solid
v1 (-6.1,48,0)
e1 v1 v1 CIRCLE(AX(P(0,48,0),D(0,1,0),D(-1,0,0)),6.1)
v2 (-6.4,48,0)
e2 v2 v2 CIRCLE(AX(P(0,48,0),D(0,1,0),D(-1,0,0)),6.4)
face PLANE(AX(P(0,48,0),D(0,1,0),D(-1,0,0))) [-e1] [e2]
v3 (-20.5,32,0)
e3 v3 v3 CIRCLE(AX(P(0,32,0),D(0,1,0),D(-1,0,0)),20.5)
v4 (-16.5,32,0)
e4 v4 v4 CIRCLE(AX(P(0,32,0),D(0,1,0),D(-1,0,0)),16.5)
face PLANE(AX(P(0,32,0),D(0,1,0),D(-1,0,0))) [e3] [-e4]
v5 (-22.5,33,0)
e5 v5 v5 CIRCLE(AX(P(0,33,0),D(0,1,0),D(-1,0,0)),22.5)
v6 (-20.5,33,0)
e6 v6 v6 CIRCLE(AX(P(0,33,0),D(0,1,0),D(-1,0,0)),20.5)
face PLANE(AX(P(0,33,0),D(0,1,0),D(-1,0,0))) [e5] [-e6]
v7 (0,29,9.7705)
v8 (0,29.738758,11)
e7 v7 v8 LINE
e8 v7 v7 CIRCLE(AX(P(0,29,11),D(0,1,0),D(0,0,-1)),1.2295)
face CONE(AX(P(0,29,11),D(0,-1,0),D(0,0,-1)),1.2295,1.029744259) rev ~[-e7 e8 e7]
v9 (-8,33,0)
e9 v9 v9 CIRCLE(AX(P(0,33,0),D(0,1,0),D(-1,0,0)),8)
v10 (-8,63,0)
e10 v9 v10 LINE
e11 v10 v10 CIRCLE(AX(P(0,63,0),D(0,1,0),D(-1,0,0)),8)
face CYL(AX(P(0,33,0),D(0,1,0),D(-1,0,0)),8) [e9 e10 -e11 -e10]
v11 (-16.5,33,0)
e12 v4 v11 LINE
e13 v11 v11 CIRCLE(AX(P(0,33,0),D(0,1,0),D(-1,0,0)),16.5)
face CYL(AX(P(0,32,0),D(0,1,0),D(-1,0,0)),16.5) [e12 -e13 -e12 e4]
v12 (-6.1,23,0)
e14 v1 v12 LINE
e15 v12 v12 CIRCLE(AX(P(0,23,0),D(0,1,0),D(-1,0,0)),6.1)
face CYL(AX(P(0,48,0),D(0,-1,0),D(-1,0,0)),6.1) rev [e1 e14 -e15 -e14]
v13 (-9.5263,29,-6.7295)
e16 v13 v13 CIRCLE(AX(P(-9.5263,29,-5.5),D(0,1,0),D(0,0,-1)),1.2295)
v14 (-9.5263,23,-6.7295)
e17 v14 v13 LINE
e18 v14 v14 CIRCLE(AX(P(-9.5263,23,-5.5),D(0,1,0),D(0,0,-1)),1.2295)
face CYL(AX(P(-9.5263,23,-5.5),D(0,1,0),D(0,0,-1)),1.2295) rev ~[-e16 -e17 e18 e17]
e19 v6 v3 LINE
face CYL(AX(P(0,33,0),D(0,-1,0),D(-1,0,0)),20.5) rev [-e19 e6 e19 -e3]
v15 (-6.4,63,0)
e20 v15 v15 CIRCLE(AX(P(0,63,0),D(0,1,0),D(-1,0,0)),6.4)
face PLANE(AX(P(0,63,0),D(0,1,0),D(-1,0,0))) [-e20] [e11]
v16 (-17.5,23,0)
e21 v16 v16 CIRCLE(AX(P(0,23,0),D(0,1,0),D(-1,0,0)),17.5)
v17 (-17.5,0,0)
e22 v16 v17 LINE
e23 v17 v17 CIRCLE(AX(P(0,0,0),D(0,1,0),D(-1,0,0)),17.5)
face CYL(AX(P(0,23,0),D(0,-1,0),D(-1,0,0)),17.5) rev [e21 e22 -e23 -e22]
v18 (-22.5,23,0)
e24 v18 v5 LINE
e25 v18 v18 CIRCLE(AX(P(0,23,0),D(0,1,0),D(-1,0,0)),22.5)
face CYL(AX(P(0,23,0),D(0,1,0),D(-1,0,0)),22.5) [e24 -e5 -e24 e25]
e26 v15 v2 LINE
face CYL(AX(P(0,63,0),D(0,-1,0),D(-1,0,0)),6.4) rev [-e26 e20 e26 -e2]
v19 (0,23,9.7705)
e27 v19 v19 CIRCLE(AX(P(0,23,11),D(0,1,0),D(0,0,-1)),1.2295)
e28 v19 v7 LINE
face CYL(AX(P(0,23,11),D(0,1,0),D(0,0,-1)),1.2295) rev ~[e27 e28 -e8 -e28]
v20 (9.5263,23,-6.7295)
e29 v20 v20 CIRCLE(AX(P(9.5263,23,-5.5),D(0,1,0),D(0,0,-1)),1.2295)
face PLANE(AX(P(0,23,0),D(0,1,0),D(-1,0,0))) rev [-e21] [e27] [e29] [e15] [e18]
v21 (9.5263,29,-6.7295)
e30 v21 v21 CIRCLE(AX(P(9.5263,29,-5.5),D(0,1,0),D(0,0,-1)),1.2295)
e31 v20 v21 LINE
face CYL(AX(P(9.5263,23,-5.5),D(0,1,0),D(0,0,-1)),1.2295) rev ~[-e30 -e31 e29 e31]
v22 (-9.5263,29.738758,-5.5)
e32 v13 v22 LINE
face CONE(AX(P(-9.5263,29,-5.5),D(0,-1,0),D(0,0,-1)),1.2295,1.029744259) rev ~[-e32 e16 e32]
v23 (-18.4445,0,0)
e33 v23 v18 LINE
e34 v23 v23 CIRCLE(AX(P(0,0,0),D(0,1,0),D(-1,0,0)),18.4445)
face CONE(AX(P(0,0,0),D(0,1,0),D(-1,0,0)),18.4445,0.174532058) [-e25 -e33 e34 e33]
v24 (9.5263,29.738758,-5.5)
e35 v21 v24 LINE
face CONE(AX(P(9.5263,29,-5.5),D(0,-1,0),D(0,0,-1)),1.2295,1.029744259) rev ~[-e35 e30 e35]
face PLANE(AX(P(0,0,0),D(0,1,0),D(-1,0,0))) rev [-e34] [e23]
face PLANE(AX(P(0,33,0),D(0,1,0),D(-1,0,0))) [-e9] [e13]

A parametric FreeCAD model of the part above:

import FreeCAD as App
import Part
import Sketcher

V = App.Vector
Q = App.Units.Quantity

doc = App.newDocument("Part")
body = doc.addObject("PartDesign::Body", "Body")

# Sketch on XY plane
sketch1 = body.newObject("Sketcher::SketchObject", "Sketch")
sketch1.AttachmentSupport = (doc.getObject("XY_Plane"), [""])
sketch1.MapMode = "FlatFace"
sketch1.addGeometry([
    Part.LineSegment(V(-6.4, 48, 0), V(-6.4, 63, 0)),  # 0
    Part.LineSegment(V(-6.4, 63, 0), V(-8, 63, 0)),  # 1
    Part.LineSegment(V(-8, 63, 0), V(-8, 33, 0)),  # 2
    Part.LineSegment(V(-8, 33, 0), V(-16.5, 33, 0)),  # 3
    Part.LineSegment(V(-16.5, 33, 0), V(-16.5, 32, 0)),  # 4
    Part.LineSegment(V(-16.5, 32, 0), V(-20.5, 32, 0)),  # 5
    Part.LineSegment(V(-20.5, 32, 0), V(-20.5, 33, 0)),  # 6
    Part.LineSegment(V(-20.5, 33, 0), V(-22.5, 33, 0)),  # 7
    Part.LineSegment(V(-22.5, 33, 0), V(-22.5, 23, 0)),  # 8
    Part.LineSegment(V(-22.5, 23, 0), V(-18.44, 0, 0)),  # 9
    Part.LineSegment(V(-18.44, 0, 0), V(-17.5, 0, 0)),  # 10
    Part.LineSegment(V(-17.5, 0, 0), V(-17.5, 23, 0)),  # 11
    Part.LineSegment(V(-17.5, 23, 0), V(-6.1, 23, 0)),  # 12
    Part.LineSegment(V(-6.1, 23, 0), V(-6.1, 48, 0)),  # 13
    Part.LineSegment(V(-6.1, 48, 0), V(-6.4, 48, 0)),  # 14
], False)
sketch1.addConstraint([
    Sketcher.Constraint("Coincident", 0, 2, 1, 1),
    Sketcher.Constraint("Coincident", 1, 2, 2, 1),
    Sketcher.Constraint("Coincident", 2, 2, 3, 1),
    Sketcher.Constraint("Coincident", 3, 2, 4, 1),
    Sketcher.Constraint("Coincident", 4, 2, 5, 1),
    Sketcher.Constraint("Coincident", 5, 2, 6, 1),
    Sketcher.Constraint("Coincident", 6, 2, 7, 1),
    Sketcher.Constraint("Coincident", 7, 2, 8, 1),
    Sketcher.Constraint("Coincident", 8, 2, 9, 1),
    Sketcher.Constraint("Coincident", 9, 2, 10, 1),
    Sketcher.Constraint("Coincident", 10, 2, 11, 1),
    Sketcher.Constraint("Coincident", 11, 2, 12, 1),
    Sketcher.Constraint("Coincident", 12, 2, 13, 1),
    Sketcher.Constraint("Coincident", 13, 2, 14, 1),
    Sketcher.Constraint("Coincident", 14, 2, 0, 1),
    Sketcher.Constraint("Vertical", 0),
    Sketcher.Constraint("Horizontal", 1),
    Sketcher.Constraint("Vertical", 2),
    Sketcher.Constraint("Horizontal", 3),
    Sketcher.Constraint("Vertical", 4),
    Sketcher.Constraint("Horizontal", 5),
    Sketcher.Constraint("Vertical", 6),
    Sketcher.Constraint("Horizontal", 7),
    Sketcher.Constraint("Vertical", 8),
    Sketcher.Constraint("Horizontal", 10),
    Sketcher.Constraint("Vertical", 11),
    Sketcher.Constraint("Horizontal", 12),
    Sketcher.Constraint("Vertical", 13),
    Sketcher.Constraint("Horizontal", 14),
    Sketcher.Constraint("PointOnObject", 9, 2, -1),
    Sketcher.Constraint("Horizontal", 3, 2, 6, 2),
    Sketcher.Constraint("Horizontal", 8, 2, 11, 2),
    Sketcher.Constraint("DistanceX", 5, 2, 5, 1, Q("4 mm")),
    Sketcher.Constraint("DistanceY", 0, 1, 0, 2, Q("15 mm")),
    Sketcher.Constraint("DistanceY", 2, 2, 2, 1, Q("30 mm")),
    Sketcher.Constraint("DistanceY", 4, 2, 4, 1, Q("1 mm")),
    Sketcher.Constraint("DistanceY", 8, 2, 8, 1, Q("10 mm")),
    Sketcher.Constraint("DistanceY", 11, 1, 11, 2, Q("23 mm")),
    Sketcher.Constraint("DistanceX", 1, 2, -1, 1, Q("8 mm")),
    Sketcher.Constraint("DistanceX", 10, 2, 4, 2, Q("1 mm")),
    Sketcher.Constraint("DistanceX", 0, 2, -1, 1, Q("6.4 mm")),
    Sketcher.Constraint("DistanceX", 5, 2, -1, 1, Q("20.5 mm")),
    Sketcher.Constraint("DistanceX", 7, 2, -1, 1, Q("22.5 mm")),
    Sketcher.Constraint("DistanceX", 12, 2, -1, 1, Q("6.1 mm")),
    Sketcher.Constraint("Angle", 9, Q("-80 deg")),
])
revolution = body.newObject("PartDesign::Revolution", "Revolution")
revolution.Profile = sketch1
revolution.ReferenceAxis = (sketch1, ["V_Axis"])
revolution.Angle = 360

# Sketch on XZ plane
sketch2 = body.newObject("Sketcher::SketchObject", "Sketch001")
sketch2.AttachmentSupport = (doc.getObject("XZ_Plane"), [""])
sketch2.MapMode = "FlatFace"
sketch2.AttachmentOffset = App.Placement(V(0, 0, -23), App.Rotation())
sketch2.addGeometry([
    Part.Circle(V(0, 11, 0), V(0, 0, 1), 1.2),
    Part.Circle(V(-9.5, -5.5, 0), V(0, 0, 1), 1.2),
    Part.Circle(V(9.5, -5.5, 0), V(0, 0, 1), 1.2),
], False)
sketch2.addConstraint([
    Sketcher.Constraint("Equal", 0, 1),
    Sketcher.Constraint("Equal", 1, 2),
    Sketcher.Constraint("Symmetric", 1, 3, 2, 3, -2),
    Sketcher.Constraint("PointOnObject", 0, 3, -2),
    Sketcher.Constraint("Diameter", 0, Q("2.459 mm")),
    Sketcher.Constraint("DistanceY", -1, 1, 0, 3, Q("11 mm")),
    Sketcher.Constraint("DistanceY", 1, 3, -1, 1, Q("5.5 mm")),
    Sketcher.Constraint("DistanceX", 1, 3, -1, 1, Q("9.5263 mm")),
])
doc.recompute()
hole = body.newObject("PartDesign::Hole", "Hole")
hole.Profile = sketch2
hole.ThreadType = "None"
hole.Diameter = 2.459
hole.DepthType = "Dimension"
hole.Depth = 6
hole.DrillPoint = "Angled"
hole.DrillPointAngle = 118

doc.recompute()
